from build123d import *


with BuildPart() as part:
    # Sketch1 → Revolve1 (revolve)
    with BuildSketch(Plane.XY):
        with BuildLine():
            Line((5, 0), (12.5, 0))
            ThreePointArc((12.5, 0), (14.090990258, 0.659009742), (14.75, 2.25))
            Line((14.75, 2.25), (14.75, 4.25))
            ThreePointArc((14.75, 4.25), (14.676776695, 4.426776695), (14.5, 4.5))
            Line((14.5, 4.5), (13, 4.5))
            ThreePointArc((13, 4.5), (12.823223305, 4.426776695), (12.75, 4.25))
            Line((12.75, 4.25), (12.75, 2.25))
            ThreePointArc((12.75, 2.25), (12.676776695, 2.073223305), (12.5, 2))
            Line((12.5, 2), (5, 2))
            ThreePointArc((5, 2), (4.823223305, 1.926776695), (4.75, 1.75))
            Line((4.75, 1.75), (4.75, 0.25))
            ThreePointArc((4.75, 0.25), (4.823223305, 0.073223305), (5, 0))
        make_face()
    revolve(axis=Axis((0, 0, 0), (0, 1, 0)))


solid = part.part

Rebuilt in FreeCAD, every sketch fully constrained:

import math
import FreeCAD as App
import Part
import Sketcher
from FreeCAD import Vector
Q = App.Units.Quantity

doc = App.newDocument("Part")
body = doc.addObject("PartDesign::Body", "Body")

# Sketch on XY plane
sketch1 = body.newObject("Sketcher::SketchObject", "Sketch")
sketch1.AttachmentSupport = (doc.getObject("XY_Plane"), [""])
sketch1.MapMode = "FlatFace"
sketch1.addGeometry(Part.LineSegment(Vector(5, 0, 0), Vector(12.5, 0, 0)), False)
sketch1.addGeometry(Part.ArcOfCircle(Part.Circle(Vector(12.5, 2.25, 0), Vector(0, 0, 1), 2.25), math.radians(-90), math.radians(0)), False)
sketch1.addGeometry(Part.LineSegment(Vector(14.75, 2.25, 0), Vector(14.75, 4.25, 0)), False)
sketch1.addGeometry(Part.ArcOfCircle(Part.Circle(Vector(14.5, 4.25, 0), Vector(0, 0, 1), 0.25), math.radians(0), math.radians(90)), False)
sketch1.addGeometry(Part.LineSegment(Vector(14.5, 4.5, 0), Vector(13, 4.5, 0)), False)
sketch1.addGeometry(Part.ArcOfCircle(Part.Circle(Vector(13, 4.25, 0), Vector(0, 0, 1), 0.25), math.radians(90), math.radians(180)), False)
sketch1.addGeometry(Part.LineSegment(Vector(12.75, 4.25, 0), Vector(12.75, 2.25, 0)), False)
sketch1.addGeometry(Part.ArcOfCircle(Part.Circle(Vector(12.5, 2.25, 0), Vector(0, 0, 1), 0.25), math.radians(-90), math.radians(0)), False)
sketch1.addGeometry(Part.LineSegment(Vector(12.5, 2, 0), Vector(5, 2, 0)), False)
sketch1.addGeometry(Part.ArcOfCircle(Part.Circle(Vector(5, 1.75, 0), Vector(0, 0, 1), 0.25), math.radians(90), math.radians(180)), False)
sketch1.addGeometry(Part.LineSegment(Vector(4.75, 1.75, 0), Vector(4.75, 0.25, 0)), False)
sketch1.addGeometry(Part.ArcOfCircle(Part.Circle(Vector(5, 0.25, 0), Vector(0, 0, 1), 0.25), math.radians(-180), math.radians(-90)), False)
sketch1.addConstraint(Sketcher.Constraint("Tangent", 0, 2, 1, 1))
sketch1.addConstraint(Sketcher.Constraint("Tangent", 1, 2, 2, 1))
sketch1.addConstraint(Sketcher.Constraint("Tangent", 2, 2, 3, 1))
sketch1.addConstraint(Sketcher.Constraint("Tangent", 3, 2, 4, 1))
sketch1.addConstraint(Sketcher.Constraint("Tangent", 4, 2, 5, 1))
sketch1.addConstraint(Sketcher.Constraint("Tangent", 5, 2, 6, 1))
sketch1.addConstraint(Sketcher.Constraint("Tangent", 6, 2, 7, 2))
sketch1.addConstraint(Sketcher.Constraint("Tangent", 7, 1, 8, 1))
sketch1.addConstraint(Sketcher.Constraint("Tangent", 8, 2, 9, 1))
sketch1.addConstraint(Sketcher.Constraint("Tangent", 9, 2, 10, 1))
sketch1.addConstraint(Sketcher.Constraint("Tangent", 10, 2, 11, 1))
sketch1.addConstraint(Sketcher.Constraint("Tangent", 11, 2, 0, 1))
sketch1.addConstraint(Sketcher.Constraint("Horizontal", 0))
sketch1.addConstraint(Sketcher.Constraint("Vertical", 2))
sketch1.addConstraint(Sketcher.Constraint("Horizontal", 4))
sketch1.addConstraint(Sketcher.Constraint("Vertical", 6))
sketch1.addConstraint(Sketcher.Constraint("Horizontal", 8))
sketch1.addConstraint(Sketcher.Constraint("Vertical", 10))
sketch1.addConstraint(Sketcher.Constraint("Coincident", 7, 3, 1, 3))
sketch1.addConstraint(Sketcher.Constraint("Equal", 3, 5))
sketch1.addConstraint(Sketcher.Constraint("Equal", 5, 7))
sketch1.addConstraint(Sketcher.Constraint("Equal", 7, 9))
sketch1.addConstraint(Sketcher.Constraint("Equal", 9, 11))
sketch1.addConstraint(Sketcher.Constraint("PointOnObject", 0, 2, -1))
sketch1.addConstraint(Sketcher.Constraint("DistanceY", 2, 1, 2, 2, Q("2 mm")))
sketch1.addConstraint(Sketcher.Constraint("Radius", 1, Q("2.25 mm")))
sketch1.addConstraint(Sketcher.Constraint("Radius", 3, Q("0.25 mm")))
sketch1.addConstraint(Sketcher.Constraint("DistanceX", 0, 1, 0, 2, Q("7.5 mm")))
sketch1.addConstraint(Sketcher.Constraint("DistanceX", -1, 1, 5, 3, Q("13 mm")))
revolution = body.newObject("PartDesign::Revolution", "Revolution")
revolution.Profile = sketch1
revolution.ReferenceAxis = (sketch1, ["V_Axis"])
revolution.Angle = 360

doc.recompute()
